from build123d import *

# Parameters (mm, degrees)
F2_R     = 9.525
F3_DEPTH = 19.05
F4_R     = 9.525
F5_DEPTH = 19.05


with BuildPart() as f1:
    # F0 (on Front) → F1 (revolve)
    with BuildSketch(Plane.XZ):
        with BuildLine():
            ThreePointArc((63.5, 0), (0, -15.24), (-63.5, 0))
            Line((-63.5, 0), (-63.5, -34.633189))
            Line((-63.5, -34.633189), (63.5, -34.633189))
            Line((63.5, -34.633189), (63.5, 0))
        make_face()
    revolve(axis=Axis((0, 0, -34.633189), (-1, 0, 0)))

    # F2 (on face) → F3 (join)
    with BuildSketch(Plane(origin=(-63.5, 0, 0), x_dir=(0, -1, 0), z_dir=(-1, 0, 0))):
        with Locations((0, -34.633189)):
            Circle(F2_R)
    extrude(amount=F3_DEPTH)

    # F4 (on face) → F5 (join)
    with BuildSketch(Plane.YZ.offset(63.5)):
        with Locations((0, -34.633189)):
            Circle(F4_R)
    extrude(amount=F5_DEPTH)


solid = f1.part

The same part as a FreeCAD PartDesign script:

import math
import FreeCAD as App
import Part
import Sketcher
Q = App.Units.Quantity

doc = App.newDocument("Part")
body = doc.addObject("PartDesign::Body", "Body")

# Sketch on XZ plane
sketch1 = body.newObject("Sketcher::SketchObject", "Sketch")
sketch1.AttachmentSupport = (doc.getObject("XZ_Plane"), [""])
sketch1.MapMode = "FlatFace"
sketch1.addGeometry(Part.ArcOfCircle(Part.Circle(App.Vector(0, 125, 0), App.Vector(0, 0, 1), 140), math.radians(-117), math.radians(-63)), False)
sketch1.addGeometry(Part.LineSegment(App.Vector(-64, 0, 0), App.Vector(-64, -35, 0)), False)
sketch1.addGeometry(Part.LineSegment(App.Vector(-64, -35, 0), App.Vector(64, -35, 0)), False)
sketch1.addGeometry(Part.LineSegment(App.Vector(64, -35, 0), App.Vector(64, 0, 0)), False)
sketch1.addGeometry(Part.LineSegment(App.Vector(64, -35, 0), App.Vector(-64, -35, 0)), True)  # axis
sketch1.addConstraint(Sketcher.Constraint("Coincident", 0, 1, 1, 1))
sketch1.addConstraint(Sketcher.Constraint("Coincident", 1, 2, 2, 1))
sketch1.addConstraint(Sketcher.Constraint("Coincident", 2, 2, 3, 1))
sketch1.addConstraint(Sketcher.Constraint("Coincident", 3, 2, 0, 2))
sketch1.addConstraint(Sketcher.Constraint("Vertical", 1))
sketch1.addConstraint(Sketcher.Constraint("Horizontal", 2))
sketch1.addConstraint(Sketcher.Constraint("Vertical", 3))
sketch1.addConstraint(Sketcher.Constraint("Horizontal", 4))
sketch1.addConstraint(Sketcher.Constraint("Coincident", 4, 1, 2, 2))
sketch1.addConstraint(Sketcher.Constraint("Symmetric", 0, 1, 3, 2, -1, 1))
sketch1.addConstraint(Sketcher.Constraint("PointOnObject", 0, 3, -2))
sketch1.addConstraint(Sketcher.Constraint("Vertical", 0, 1, 4, 2))
sketch1.addConstraint(Sketcher.Constraint("DistanceX", 2, 1, 2, 2, Q("5 in")))
sketch1.addConstraint(Sketcher.Constraint("Radius", 0, 139.911667))
sketch1.addConstraint(Sketcher.Constraint("DistanceY", 1, 2, 1, 1, 34.633189))
revolution = body.newObject("PartDesign::Revolution", "Revolution")
revolution.Profile = sketch1
revolution.ReferenceAxis = (sketch1, ["Axis0"])
revolution.Angle = 360

# Sketch on YZ plane
sketch2 = body.newObject("Sketcher::SketchObject", "Sketch001")
sketch2.AttachmentSupport = (doc.getObject("YZ_Plane"), [""])
sketch2.MapMode = "FlatFace"
sketch2.AttachmentOffset = App.Placement(App.Vector(0, 0, -2.5 * 25.4), App.Rotation())
sketch2.addGeometry(Part.Circle(App.Vector(0, -35, 0), App.Vector(0, 0, 1), 10), False)
sketch2.addConstraint(Sketcher.Constraint("PointOnObject", 0, 3, -2))
sketch2.addConstraint(Sketcher.Constraint("Diameter", 0, Q("0.75 in")))
sketch2.addConstraint(Sketcher.Constraint("DistanceY", 0, 3, -1, 1, 34.633189))
pad1 = body.newObject("PartDesign::Pad", "Pad")
pad1.Profile = sketch2
pad1.Length = Q("0.75 in")
pad1.Reversed = True

# Sketch on YZ plane
sketch3 = body.newObject("Sketcher::SketchObject", "Sketch002")
sketch3.AttachmentSupport = (doc.getObject("YZ_Plane"), [""])
sketch3.MapMode = "FlatFace"
sketch3.AttachmentOffset = App.Placement(App.Vector(0, 0, 2.5 * 25.4), App.Rotation())
sketch3.addGeometry(Part.Circle(App.Vector(0, -35, 0), App.Vector(0, 0, 1), 10), False)
sketch3.addConstraint(Sketcher.Constraint("PointOnObject", 0, 3, -2))
sketch3.addConstraint(Sketcher.Constraint("Diameter", 0, Q("0.75 in")))
sketch3.addConstraint(Sketcher.Constraint("DistanceY", 0, 3, -1, 1, 34.633189))
pad2 = body.newObject("PartDesign::Pad", "Pad001")
pad2.Profile = sketch3
pad2.Length = Q("0.75 in")

doc.recompute()
